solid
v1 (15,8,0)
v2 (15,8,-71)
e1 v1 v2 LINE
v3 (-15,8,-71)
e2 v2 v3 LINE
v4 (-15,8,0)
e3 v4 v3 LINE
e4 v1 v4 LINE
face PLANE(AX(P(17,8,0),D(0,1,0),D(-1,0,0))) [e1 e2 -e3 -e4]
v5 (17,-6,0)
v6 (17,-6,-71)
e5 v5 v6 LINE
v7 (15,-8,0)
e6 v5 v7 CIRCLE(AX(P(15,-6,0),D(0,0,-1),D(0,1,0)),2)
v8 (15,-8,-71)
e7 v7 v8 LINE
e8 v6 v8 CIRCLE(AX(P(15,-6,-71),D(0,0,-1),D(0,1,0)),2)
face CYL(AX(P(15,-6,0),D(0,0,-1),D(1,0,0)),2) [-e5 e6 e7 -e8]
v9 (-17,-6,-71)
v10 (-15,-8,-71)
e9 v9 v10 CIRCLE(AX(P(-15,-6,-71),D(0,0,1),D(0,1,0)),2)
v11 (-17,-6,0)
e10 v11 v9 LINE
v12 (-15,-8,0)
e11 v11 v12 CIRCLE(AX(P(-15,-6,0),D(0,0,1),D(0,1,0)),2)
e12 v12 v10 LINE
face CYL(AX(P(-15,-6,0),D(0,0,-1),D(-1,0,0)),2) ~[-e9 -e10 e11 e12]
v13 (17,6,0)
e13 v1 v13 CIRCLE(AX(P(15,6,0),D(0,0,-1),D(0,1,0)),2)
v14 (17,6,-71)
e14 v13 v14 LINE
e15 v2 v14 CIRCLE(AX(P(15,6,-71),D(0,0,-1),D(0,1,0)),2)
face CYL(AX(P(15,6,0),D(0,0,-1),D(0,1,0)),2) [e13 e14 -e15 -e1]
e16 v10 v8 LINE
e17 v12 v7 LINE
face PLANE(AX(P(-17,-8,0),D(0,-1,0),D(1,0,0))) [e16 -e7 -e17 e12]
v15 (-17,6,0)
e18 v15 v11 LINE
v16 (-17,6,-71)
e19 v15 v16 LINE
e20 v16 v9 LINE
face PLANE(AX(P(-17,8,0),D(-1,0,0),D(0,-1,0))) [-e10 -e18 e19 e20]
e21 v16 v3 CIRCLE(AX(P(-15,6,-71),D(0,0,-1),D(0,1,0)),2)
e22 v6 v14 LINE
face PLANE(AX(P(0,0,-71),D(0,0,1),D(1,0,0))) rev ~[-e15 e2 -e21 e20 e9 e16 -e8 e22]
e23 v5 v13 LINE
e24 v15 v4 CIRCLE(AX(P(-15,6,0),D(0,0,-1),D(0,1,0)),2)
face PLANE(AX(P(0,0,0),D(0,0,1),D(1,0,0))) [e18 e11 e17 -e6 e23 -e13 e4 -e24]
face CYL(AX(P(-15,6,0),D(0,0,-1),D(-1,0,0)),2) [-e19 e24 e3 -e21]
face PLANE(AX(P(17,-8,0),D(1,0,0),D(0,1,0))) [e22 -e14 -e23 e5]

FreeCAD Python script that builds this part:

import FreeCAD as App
import Part
import Sketcher

V = App.Vector
Q = App.Units.Quantity


def edges_at(feature, points):
    """Names of the edges that pass closest to the given points."""
    edges = feature.Shape.Edges
    near = lambda p: min(range(len(edges)), key=lambda i: edges[i].distToShape(Part.Vertex(*p))[0])
    return sorted({f"Edge{near(p) + 1}" for p in points})


def add_polygon(sketch, points):
    """Adds a closed chain of lines whose ends are joined by coincident constraints."""
    first, n = sketch.GeometryCount, len(points)
    for a, b in zip(points, points[1:] + points[:1]):
        sketch.addGeometry(Part.LineSegment(App.Vector(*a, 0), App.Vector(*b, 0)), False)
    for i in range(n):
        sketch.addConstraint(Sketcher.Constraint("Coincident", first + i, 2, first + (i + 1) % n, 1))

doc = App.newDocument("Part")
body = doc.addObject("PartDesign::Body", "Body")

# Sketch on XY plane
sketch1 = doc.addObject("Sketcher::SketchObject", "Sketch")
body.addObject(sketch1)
sketch1.AttachmentSupport = (doc.XY_Plane, [""])
sketch1.MapMode = "FlatFace"
add_polygon(sketch1, [(-17, 8), (-17, -8), (17, -8), (17, 8)])  # lines 0-3
sketch1.addConstraint([
    Sketcher.Constraint("Vertical", 0),
    Sketcher.Constraint("Horizontal", 1),
    Sketcher.Constraint("Vertical", 2),
    Sketcher.Constraint("Horizontal", 3),
    Sketcher.Constraint("Symmetric", 0, 2, 2, 2, -1, 1),
    Sketcher.Constraint("DistanceX", 1, 1, 1, 2, Q("34 mm")),
    Sketcher.Constraint("DistanceY", 0, 2, 0, 1, Q("16 mm")),
])
pad1 = doc.addObject("PartDesign::Pad", "Pad")
body.addObject(pad1)
pad1.Profile = sketch1
pad1.Length = 71
pad1.Reversed = True
doc.recompute()

fillet = doc.addObject("PartDesign::Fillet", "Fillet")
body.addObject(fillet)
fillet.Base = (pad1, edges_at(pad1, [
    (17, 8, -35.5),
    (-17, 8, -35.5),
    (-17, -8, -35.5),
    (17, -8, -35.5),
]))
fillet.Radius = 2

doc.recompute()
